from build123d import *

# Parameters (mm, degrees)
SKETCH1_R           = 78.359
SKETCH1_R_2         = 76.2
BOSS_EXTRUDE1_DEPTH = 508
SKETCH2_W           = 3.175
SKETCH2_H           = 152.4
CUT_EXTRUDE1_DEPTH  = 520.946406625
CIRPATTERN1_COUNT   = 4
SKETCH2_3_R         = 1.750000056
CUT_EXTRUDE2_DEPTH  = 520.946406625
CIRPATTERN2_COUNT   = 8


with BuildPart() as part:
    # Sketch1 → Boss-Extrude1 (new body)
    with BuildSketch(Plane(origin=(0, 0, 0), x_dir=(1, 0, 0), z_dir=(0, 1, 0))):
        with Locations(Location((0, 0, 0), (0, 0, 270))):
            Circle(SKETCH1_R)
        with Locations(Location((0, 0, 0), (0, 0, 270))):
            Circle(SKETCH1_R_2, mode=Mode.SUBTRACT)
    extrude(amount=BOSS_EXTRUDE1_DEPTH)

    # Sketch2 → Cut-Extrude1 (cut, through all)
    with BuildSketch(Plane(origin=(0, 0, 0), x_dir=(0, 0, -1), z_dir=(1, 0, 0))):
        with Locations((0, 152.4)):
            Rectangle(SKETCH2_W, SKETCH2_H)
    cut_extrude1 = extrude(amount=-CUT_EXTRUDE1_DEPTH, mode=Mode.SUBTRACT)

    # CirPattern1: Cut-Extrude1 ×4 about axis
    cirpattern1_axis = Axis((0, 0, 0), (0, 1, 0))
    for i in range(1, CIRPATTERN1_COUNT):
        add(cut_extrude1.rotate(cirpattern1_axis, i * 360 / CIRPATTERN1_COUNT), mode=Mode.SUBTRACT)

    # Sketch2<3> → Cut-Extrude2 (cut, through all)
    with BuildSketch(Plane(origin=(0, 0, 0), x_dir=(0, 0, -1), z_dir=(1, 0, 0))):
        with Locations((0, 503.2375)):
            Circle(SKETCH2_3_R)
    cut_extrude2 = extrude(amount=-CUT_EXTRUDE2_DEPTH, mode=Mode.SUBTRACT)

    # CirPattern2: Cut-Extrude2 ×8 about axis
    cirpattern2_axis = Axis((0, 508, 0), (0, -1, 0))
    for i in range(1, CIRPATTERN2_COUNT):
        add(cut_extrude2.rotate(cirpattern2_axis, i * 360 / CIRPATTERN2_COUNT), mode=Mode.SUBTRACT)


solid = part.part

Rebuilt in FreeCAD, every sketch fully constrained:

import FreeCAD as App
import Part
import Sketcher

V = App.Vector
Q = App.Units.Quantity

doc = App.newDocument("Part")
body = doc.addObject("PartDesign::Body", "Body")

sketch1 = body.newObject("Sketcher::SketchObject", "Sketch")
sketch1.AttachmentSupport = (doc.getObject("XZ_Plane"), [""])
sketch1.MapMode = "FlatFace"
sketch1.addGeometry(Part.Circle(V(0, 0, 0), V(0, 0, 1), 78), False)
sketch1.addGeometry(Part.Circle(V(0, 0, 0), V(0, 0, 1), 76), False)
sketch1.addConstraint(Sketcher.Constraint("Coincident", 0, 3, -1, 1))
sketch1.addConstraint(Sketcher.Constraint("Coincident", 1, 3, -1, 1))
sketch1.addConstraint(Sketcher.Constraint("Diameter", 1, Q("6 in")))
sketch1.addConstraint(Sketcher.Constraint("Diameter", 0, Q("6.17 in")))
pad1 = body.newObject("PartDesign::Pad", "Pad")
pad1.Profile = sketch1
pad1.Length = Q("20 in")
pad1.Reversed = True

sketch2 = body.newObject("Sketcher::SketchObject", "Sketch001")
sketch2.AttachmentSupport = (doc.getObject("YZ_Plane"), [""])
sketch2.MapMode = "FlatFace"
sketch2.addGeometry(Part.LineSegment(V(228.6, 1.6, 0), V(76.2, 1.6, 0)), False)
sketch2.addGeometry(Part.LineSegment(V(76.2, 1.6, 0), V(76.2, -1.6, 0)), False)
sketch2.addGeometry(Part.LineSegment(V(76.2, -1.6, 0), V(228.6, -1.6, 0)), False)
sketch2.addGeometry(Part.LineSegment(V(228.6, -1.6, 0), V(228.6, 1.6, 0)), False)
sketch2.addConstraint(Sketcher.Constraint("Coincident", 0, 2, 1, 1))
sketch2.addConstraint(Sketcher.Constraint("Coincident", 1, 2, 2, 1))
sketch2.addConstraint(Sketcher.Constraint("Coincident", 2, 2, 3, 1))
sketch2.addConstraint(Sketcher.Constraint("Coincident", 3, 2, 0, 1))
sketch2.addConstraint(Sketcher.Constraint("Horizontal", 0))
sketch2.addConstraint(Sketcher.Constraint("Vertical", 1))
sketch2.addConstraint(Sketcher.Constraint("Horizontal", 2))
sketch2.addConstraint(Sketcher.Constraint("Vertical", 3))
sketch2.addConstraint(Sketcher.Constraint("DistanceX", 0, 2, 0, 1, Q("6 in")))
sketch2.addConstraint(Sketcher.Constraint("DistanceX", -1, 1, 0, 2, Q("3 in")))
sketch2.addConstraint(Sketcher.Constraint("DistanceY", 1, 2, 1, 1, Q("0.125 in")))
sketch2.addConstraint(Sketcher.Constraint("DistanceY", -1, 1, 0, 2, Q("0.0625 in")))
pocket1 = body.newObject("PartDesign::Pocket", "Pocket")
pocket1.Profile = sketch2
pocket1.Type = "ThroughAll"
doc.recompute()

polarpattern = body.newObject("PartDesign::PolarPattern", "PolarPattern")
polarpattern.Originals = [pocket1]
polarpattern.Axis = (doc.getObject("Y_Axis"), [""])
polarpattern.Angle = 360
polarpattern.Occurrences = 4
body.Tip = polarpattern

sketch3 = body.newObject("Sketcher::SketchObject", "Sketch002")
sketch3.AttachmentSupport = (doc.getObject("YZ_Plane"), [""])
sketch3.MapMode = "FlatFace"
sketch3.addGeometry(Part.Circle(V(503.2, 0, 0), V(0, 0, 1), 1.8), False)
sketch3.addConstraint(Sketcher.Constraint("PointOnObject", 0, 3, -1))
sketch3.addConstraint(Sketcher.Constraint("Diameter", 0, Q("3.5 mm")))
sketch3.addConstraint(Sketcher.Constraint("DistanceX", -1, 1, 0, 3, Q("19.8125 in")))
pocket2 = body.newObject("PartDesign::Pocket", "Pocket001")
pocket2.Profile = sketch3
pocket2.Type = "ThroughAll"
doc.recompute()

polarpattern2 = body.newObject("PartDesign::PolarPattern", "PolarPattern001")
polarpattern2.Originals = [pocket2]
polarpattern2.Axis = (doc.getObject("Y_Axis"), [""])
polarpattern2.Angle = 360
polarpattern2.Occurrences = 8
body.Tip = polarpattern2

doc.recompute()
